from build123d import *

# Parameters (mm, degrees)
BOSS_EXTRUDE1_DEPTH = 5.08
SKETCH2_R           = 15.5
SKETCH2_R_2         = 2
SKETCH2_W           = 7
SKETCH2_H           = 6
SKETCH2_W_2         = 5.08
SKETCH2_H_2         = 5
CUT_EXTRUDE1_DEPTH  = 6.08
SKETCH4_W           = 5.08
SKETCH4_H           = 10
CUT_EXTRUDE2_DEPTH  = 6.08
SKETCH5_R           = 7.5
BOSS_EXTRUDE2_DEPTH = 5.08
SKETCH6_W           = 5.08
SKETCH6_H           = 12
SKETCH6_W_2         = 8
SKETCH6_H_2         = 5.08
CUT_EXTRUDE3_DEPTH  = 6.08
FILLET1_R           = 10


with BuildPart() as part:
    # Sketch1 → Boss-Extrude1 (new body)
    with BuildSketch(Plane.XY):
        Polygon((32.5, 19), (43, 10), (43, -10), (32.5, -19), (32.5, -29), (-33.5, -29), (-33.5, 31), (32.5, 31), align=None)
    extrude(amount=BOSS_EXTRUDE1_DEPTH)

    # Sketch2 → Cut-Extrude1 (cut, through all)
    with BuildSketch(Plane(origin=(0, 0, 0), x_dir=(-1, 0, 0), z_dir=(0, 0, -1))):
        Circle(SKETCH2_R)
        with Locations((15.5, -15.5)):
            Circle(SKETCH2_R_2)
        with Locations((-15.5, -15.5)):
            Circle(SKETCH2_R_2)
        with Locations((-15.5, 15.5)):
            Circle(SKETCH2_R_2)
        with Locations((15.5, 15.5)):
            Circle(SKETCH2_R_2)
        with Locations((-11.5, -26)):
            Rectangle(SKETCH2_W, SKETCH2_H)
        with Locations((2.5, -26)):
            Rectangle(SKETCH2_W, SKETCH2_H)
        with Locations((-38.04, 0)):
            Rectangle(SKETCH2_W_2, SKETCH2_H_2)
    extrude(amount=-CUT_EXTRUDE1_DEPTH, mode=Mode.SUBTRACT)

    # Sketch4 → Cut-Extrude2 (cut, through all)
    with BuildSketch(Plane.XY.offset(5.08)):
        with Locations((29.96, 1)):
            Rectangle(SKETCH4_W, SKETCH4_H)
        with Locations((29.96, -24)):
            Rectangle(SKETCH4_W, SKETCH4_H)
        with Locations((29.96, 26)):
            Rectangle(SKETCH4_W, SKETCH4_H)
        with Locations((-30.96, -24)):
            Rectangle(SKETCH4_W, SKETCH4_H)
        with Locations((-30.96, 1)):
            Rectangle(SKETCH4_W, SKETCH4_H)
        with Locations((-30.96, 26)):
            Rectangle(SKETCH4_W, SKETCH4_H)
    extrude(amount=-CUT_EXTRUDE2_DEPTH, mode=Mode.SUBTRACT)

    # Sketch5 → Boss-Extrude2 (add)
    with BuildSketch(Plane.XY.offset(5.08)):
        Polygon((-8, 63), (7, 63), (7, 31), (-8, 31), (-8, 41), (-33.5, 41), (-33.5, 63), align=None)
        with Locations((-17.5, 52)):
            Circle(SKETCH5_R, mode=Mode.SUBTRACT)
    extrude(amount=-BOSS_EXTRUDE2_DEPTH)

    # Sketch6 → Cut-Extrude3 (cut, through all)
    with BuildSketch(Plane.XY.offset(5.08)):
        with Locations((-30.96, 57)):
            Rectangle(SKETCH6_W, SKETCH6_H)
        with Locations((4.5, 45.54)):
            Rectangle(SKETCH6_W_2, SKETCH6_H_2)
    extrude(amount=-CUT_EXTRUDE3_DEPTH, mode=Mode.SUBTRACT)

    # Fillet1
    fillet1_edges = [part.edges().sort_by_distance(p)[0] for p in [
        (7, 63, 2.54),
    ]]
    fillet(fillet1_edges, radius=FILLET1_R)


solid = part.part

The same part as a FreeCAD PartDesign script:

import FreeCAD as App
import Part
import Sketcher
Q = App.Units.Quantity


def edges_at(feature, points):
    """Names of the edges that pass closest to the given points."""
    edges = feature.Shape.Edges
    near = lambda p: min(range(len(edges)), key=lambda i: edges[i].distToShape(Part.Vertex(*p))[0])
    return sorted({f"Edge{near(p) + 1}" for p in points})


def add_polygon(sketch, points):
    """Adds a closed chain of lines whose ends are joined by coincident constraints."""
    first, n = sketch.GeometryCount, len(points)
    for a, b in zip(points, points[1:] + points[:1]):
        sketch.addGeometry(Part.LineSegment(App.Vector(*a, 0), App.Vector(*b, 0)), False)
    for i in range(n):
        sketch.addConstraint(Sketcher.Constraint("Coincident", first + i, 2, first + (i + 1) % n, 1))

doc = App.newDocument("Part")
params = doc.addObject("Spreadsheet::Sheet", "Params")
for row, (alias, value) in enumerate([
    ("sketch1_width", "66 mm"),
    ("sketch1_height", "12 mm"),
    ("sketch1_height2", "60 mm"),
    ("sketch1_height3", "10 mm"),
    ("sketch1_height4", "20 mm"),
    ("pad1_length", "5.08 mm"),
    ("sketch2_diameter", "31 mm"),
    ("sketch2_diameter2", "4 mm"),
    ("sketch2_width", "7 mm"),
    ("sketch2_height", "6 mm"),
    ("sketch2_height2", "5 mm"),
    ("sketch3_height", "10 mm"),
    ("sketch3_width", "5.08 mm"),
    ("sketch4_diameter", "15 mm"),
    ("sketch4_width", "15 mm"),
    ("sketch4_height", "22 mm"),
    ("sketch4_height2", "10 mm"),
    ("sketch4_width2", "40.5 mm"),
    ("pad2_length", "5.08 mm"),
    ("sketch5_width", "8 mm"),
    ("sketch5_height", "12 mm"),
    ("sketch5_width2", "5.08 mm"),
    ("fillet_radius", "10 mm"),
], start=1):
    params.set(f"A{row}", alias)
    params.set(f"B{row}", "=" + value)
    params.setAlias(f"B{row}", alias)

body = doc.addObject("PartDesign::Body", "Body")

# Sketch on XY plane
sketch1 = body.newObject("Sketcher::SketchObject", "Sketch")
sketch1.AttachmentSupport = (doc.getObject("XY_Plane"), [""])
sketch1.MapMode = "FlatFace"
add_polygon(sketch1, [(43, 10), (32, 19), (32, 31), (-34, 31), (-34, -29), (32, -29), (32, -19), (43, -10)])  # lines 0-7
sketch1.addConstraint([
    Sketcher.Constraint("Vertical", 1),
    Sketcher.Constraint("Horizontal", 2),
    Sketcher.Constraint("Vertical", 3),
    Sketcher.Constraint("Horizontal", 4),
    Sketcher.Constraint("Vertical", 5),
    Sketcher.Constraint("Vertical", 7),
    Sketcher.Constraint("Symmetric", 0, 2, 5, 2, -1),
    Sketcher.Constraint("Equal", 0, 6),
    Sketcher.Constraint("DistanceX", 2, 2, 2, 1, Q("66 mm")),
    Sketcher.Constraint("DistanceY", 1, 1, 1, 2, Q("12 mm")),
    Sketcher.Constraint("DistanceY", 3, 2, 3, 1, Q("60 mm")),
    Sketcher.Constraint("DistanceY", 5, 1, 5, 2, Q("10 mm")),
    Sketcher.Constraint("DistanceY", 7, 1, 7, 2, Q("20 mm")),
    Sketcher.Constraint("DistanceX", -1, 1, 6, 2, Q("43 mm")),
    Sketcher.Constraint("DistanceX", -1, 1, 0, 2, Q("32.5 mm")),
])
sketch1.setExpression("Constraints[16]", "Params.sketch1_width")
sketch1.setExpression("Constraints[17]", "Params.sketch1_height")
sketch1.setExpression("Constraints[18]", "Params.sketch1_height2")
sketch1.setExpression("Constraints[19]", "Params.sketch1_height3")
sketch1.setExpression("Constraints[20]", "Params.sketch1_height4")
pad1 = body.newObject("PartDesign::Pad", "Pad")
pad1.Profile = sketch1
pad1.setExpression("Length", "Params.pad1_length")

# Sketch on XY plane
sketch2 = body.newObject("Sketcher::SketchObject", "Sketch001")
sketch2.AttachmentSupport = (doc.getObject("XY_Plane"), [""])
sketch2.MapMode = "FlatFace"
sketch2.addGeometry(Part.Circle(App.Vector(0, 0, 0), App.Vector(0, 0, 1), 15.5), False)  # 0
sketch2.addGeometry(Part.Circle(App.Vector(-15.5, -15.5, 0), App.Vector(0, 0, 1), 2), False)  # 1
sketch2.addGeometry(Part.Circle(App.Vector(15.5, -15.5, 0), App.Vector(0, 0, 1), 2), False)  # 2
sketch2.addGeometry(Part.Circle(App.Vector(15.5, 15.5, 0), App.Vector(0, 0, 1), 2), False)  # 3
sketch2.addGeometry(Part.Circle(App.Vector(-15.5, 15.5, 0), App.Vector(0, 0, 1), 2), False)  # 4
add_polygon(sketch2, [(15, -23), (15, -29), (8, -29), (8, -23)])  # lines 5-8
add_polygon(sketch2, [(1, -23), (1, -29), (-6, -29), (-6, -23)])  # lines 9-12
add_polygon(sketch2, [(40.6, 2.5), (40.6, -2.5), (35.5, -2.5), (35.5, 2.5)])  # lines 13-16
sketch2.addConstraint([
    Sketcher.Constraint("Vertical", 5),
    Sketcher.Constraint("Horizontal", 6),
    Sketcher.Constraint("Vertical", 7),
    Sketcher.Constraint("Horizontal", 8),
    Sketcher.Constraint("Vertical", 9),
    Sketcher.Constraint("Horizontal", 10),
    Sketcher.Constraint("Vertical", 11),
    Sketcher.Constraint("Horizontal", 12),
    Sketcher.Constraint("Vertical", 13),
    Sketcher.Constraint("Horizontal", 14),
    Sketcher.Constraint("Vertical", 15),
    Sketcher.Constraint("Horizontal", 16),
    Sketcher.Constraint("Coincident", 0, 3, -1, 1),
    Sketcher.Constraint("Equal", 1, 2),
    Sketcher.Constraint("Equal", 2, 3),
    Sketcher.Constraint("Equal", 3, 4),
    Sketcher.Constraint("Symmetric", 1, 3, 3, 3, -1, 1),
    Sketcher.Constraint("Symmetric", 2, 3, 4, 3, -1, 1),
    Sketcher.Constraint("Symmetric", 1, 3, 2, 3, -2),
    Sketcher.Constraint("Horizontal", 6, 2, 9, 2),
    Sketcher.Constraint("Horizontal", 8, 2, 11, 2),
    Sketcher.Constraint("Equal", 8, 10),
    Sketcher.Constraint("Diameter", 0, Q("31 mm")),
    Sketcher.Constraint("Diameter", 1, Q("4 mm")),
    Sketcher.Constraint("DistanceX", 6, 2, 6, 1, Q("7 mm")),
    Sketcher.Constraint("DistanceY", 5, 2, 5, 1, Q("6 mm")),
    Sketcher.Constraint("DistanceY", 13, 2, 13, 1, Q("5 mm")),
    Sketcher.Constraint("DistanceX", -1, 1, 5, 2, Q("15 mm")),
    Sketcher.Constraint("DistanceY", 5, 2, -1, 1, Q("29 mm")),
    Sketcher.Constraint("DistanceX", -1, 1, 9, 2, Q("1 mm")),
    Sketcher.Constraint("DistanceX", 1, 3, 2, 3, Q("31 mm")),
    Sketcher.Constraint("DistanceY", 2, 3, 3, 3, Q("31 mm")),
    Sketcher.Constraint("DistanceY", 2, 3, 13, 2, Q("13 mm")),
    Sketcher.Constraint("DistanceX", 2, 3, 14, 2, Q("20 mm")),
    Sketcher.Constraint("DistanceX", 14, 2, 14, 1, Q("5.08 mm")),
])
sketch2.setExpression("Constraints[34]", "Params.sketch2_diameter")
sketch2.setExpression("Constraints[35]", "Params.sketch2_diameter2")
sketch2.setExpression("Constraints[36]", "Params.sketch2_width")
sketch2.setExpression("Constraints[37]", "Params.sketch2_height")
sketch2.setExpression("Constraints[38]", "Params.sketch2_height2")
pocket1 = body.newObject("PartDesign::Pocket", "Pocket")
pocket1.Profile = sketch2
pocket1.Type = "ThroughAll"
pocket1.Reversed = True

# Sketch on XY plane
sketch3 = body.newObject("Sketcher::SketchObject", "Sketch002")
sketch3.AttachmentSupport = (doc.getObject("XY_Plane"), [""])
sketch3.MapMode = "FlatFace"
sketch3.AttachmentOffset = App.Placement(App.Vector(0, 0, 5.08), App.Rotation())
add_polygon(sketch3, [(27, 6), (27, -4), (32, -4), (32, 6)])  # lines 0-3
add_polygon(sketch3, [(27, -19), (27, -29), (32, -29), (32, -19)])  # lines 4-7
add_polygon(sketch3, [(27, 31), (27, 21), (32, 21), (32, 31)])  # lines 8-11
add_polygon(sketch3, [(-34, -19), (-34, -29), (-28, -29), (-28, -19)])  # lines 12-15
add_polygon(sketch3, [(-34, 6), (-34, -4), (-28, -4), (-28, 6)])  # lines 16-19
add_polygon(sketch3, [(-34, 31), (-34, 21), (-28, 21), (-28, 31)])  # lines 20-23
sketch3.addConstraint([
    Sketcher.Constraint("Vertical", 0),
    Sketcher.Constraint("Horizontal", 1),
    Sketcher.Constraint("Vertical", 2),
    Sketcher.Constraint("Horizontal", 3),
    Sketcher.Constraint("Vertical", 4),
    Sketcher.Constraint("Horizontal", 5),
    Sketcher.Constraint("Vertical", 6),
    Sketcher.Constraint("Horizontal", 7),
    Sketcher.Constraint("Vertical", 8),
    Sketcher.Constraint("Horizontal", 9),
    Sketcher.Constraint("Vertical", 10),
    Sketcher.Constraint("Horizontal", 11),
    Sketcher.Constraint("Vertical", 12),
    Sketcher.Constraint("Horizontal", 13),
    Sketcher.Constraint("Vertical", 14),
    Sketcher.Constraint("Horizontal", 15),
    Sketcher.Constraint("Vertical", 16),
    Sketcher.Constraint("Horizontal", 17),
    Sketcher.Constraint("Vertical", 18),
    Sketcher.Constraint("Horizontal", 19),
    Sketcher.Constraint("Vertical", 20),
    Sketcher.Constraint("Horizontal", 21),
    Sketcher.Constraint("Vertical", 22),
    Sketcher.Constraint("Horizontal", 23),
    Sketcher.Constraint("Horizontal", 5, 2, 12, 2),
    Sketcher.Constraint("Horizontal", 7, 2, 14, 2),
    Sketcher.Constraint("Horizontal", 1, 2, 16, 2),
    Sketcher.Constraint("Horizontal", 3, 2, 18, 2),
    Sketcher.Constraint("Horizontal", 9, 2, 20, 2),
    Sketcher.Constraint("Horizontal", 11, 2, 22, 2),
    Sketcher.Constraint("Vertical", 3, 2, 4, 2),
    Sketcher.Constraint("Vertical", 2, 2, 5, 2),
    Sketcher.Constraint("Vertical", 7, 2, 8, 2),
    Sketcher.Constraint("Vertical", 6, 2, 9, 2),
    Sketcher.Constraint("Vertical", 15, 2, 16, 2),
    Sketcher.Constraint("Vertical", 14, 2, 17, 2),
    Sketcher.Constraint("Vertical", 19, 2, 20, 2),
    Sketcher.Constraint("Vertical", 18, 2, 21, 2),
    Sketcher.Constraint("Equal", 11, 13),
    Sketcher.Constraint("Equal", 2, 4),
    Sketcher.Constraint("Equal", 6, 8),
    Sketcher.Constraint("DistanceY", 0, 2, 0, 1, Q("10 mm")),
    Sketcher.Constraint("DistanceY", 0, 2, -1, 1, Q("4 mm")),
    Sketcher.Constraint("DistanceY", 4, 2, -1, 1, Q("29 mm")),
    Sketcher.Constraint("DistanceY", -1, 1, 8, 2, Q("21 mm")),
    Sketcher.Constraint("DistanceX", 12, 2, 5, 2, Q("66 mm")),
    Sketcher.Constraint("DistanceX", 1, 1, 1, 2, Q("5.08 mm")),
    Sketcher.Constraint("DistanceX", -1, 1, 1, 2, Q("32.5 mm")),
])
sketch3.setExpression("Constraints[65]", "Params.sketch3_height")
sketch3.setExpression("Constraints[70]", "Params.sketch3_width")
pocket2 = body.newObject("PartDesign::Pocket", "Pocket001")
pocket2.Profile = sketch3
pocket2.Type = "ThroughAll"

# Sketch on XY plane
sketch4 = body.newObject("Sketcher::SketchObject", "Sketch003")
sketch4.AttachmentSupport = (doc.getObject("XY_Plane"), [""])
sketch4.MapMode = "FlatFace"
sketch4.AttachmentOffset = App.Placement(App.Vector(0, 0, 5.08), App.Rotation())
add_polygon(sketch4, [(7, 63), (-34, 63), (-34, 41), (-8, 41), (-8, 31), (7, 31)])  # lines 0-5
sketch4.addGeometry(Part.Circle(App.Vector(-18, 52, 0), App.Vector(0, 0, 1), 8), False)  # 6
sketch4.addConstraint([
    Sketcher.Constraint("Horizontal", 0),
    Sketcher.Constraint("Vertical", 1),
    Sketcher.Constraint("Horizontal", 2),
    Sketcher.Constraint("Vertical", 3),
    Sketcher.Constraint("Horizontal", 4),
    Sketcher.Constraint("Vertical", 5),
    Sketcher.Constraint("Diameter", 6, Q("15 mm")),
    Sketcher.Constraint("DistanceX", 4, 1, 4, 2, Q("15 mm")),
    Sketcher.Constraint("DistanceY", 1, 2, 1, 1, Q("22 mm")),
    Sketcher.Constraint("DistanceY", 3, 2, 3, 1, Q("10 mm")),
    Sketcher.Constraint("DistanceX", 0, 2, 0, 1, Q("40.5 mm")),
    Sketcher.Constraint("DistanceY", -1, 1, 6, 3, Q("52 mm")),
    Sketcher.Constraint("DistanceY", -1, 1, 0, 2, Q("63 mm")),
    Sketcher.Constraint("DistanceX", 2, 2, -1, 1, Q("8 mm")),
    Sketcher.Constraint("DistanceX", 0, 2, 6, 3, Q("16 mm")),
])
sketch4.setExpression("Constraints[12]", "Params.sketch4_diameter")
sketch4.setExpression("Constraints[13]", "Params.sketch4_width")
sketch4.setExpression("Constraints[14]", "Params.sketch4_height")
sketch4.setExpression("Constraints[15]", "Params.sketch4_height2")
sketch4.setExpression("Constraints[16]", "Params.sketch4_width2")
pad2 = body.newObject("PartDesign::Pad", "Pad001")
pad2.Profile = sketch4
pad2.setExpression("Length", "Params.pad2_length")
pad2.Reversed = True

# Sketch on XY plane
sketch5 = body.newObject("Sketcher::SketchObject", "Sketch004")
sketch5.AttachmentSupport = (doc.getObject("XY_Plane"), [""])
sketch5.MapMode = "FlatFace"
sketch5.AttachmentOffset = App.Placement(App.Vector(0, 0, 5.08), App.Rotation())
add_polygon(sketch5, [(-34, 63), (-34, 51), (-28, 51), (-28, 63)])  # lines 0-3
add_polygon(sketch5, [(0, 48), (0, 43), (8, 43), (8, 48)])  # lines 4-7
sketch5.addConstraint([
    Sketcher.Constraint("Vertical", 0),
    Sketcher.Constraint("Horizontal", 1),
    Sketcher.Constraint("Vertical", 2),
    Sketcher.Constraint("Horizontal", 3),
    Sketcher.Constraint("Vertical", 4),
    Sketcher.Constraint("Horizontal", 5),
    Sketcher.Constraint("Vertical", 6),
    Sketcher.Constraint("Horizontal", 7),
    Sketcher.Constraint("Equal", 3, 4),
    Sketcher.Constraint("DistanceX", 5, 1, 5, 2, Q("8 mm")),
    Sketcher.Constraint("DistanceY", 0, 2, 0, 1, Q("12 mm")),
    Sketcher.Constraint("DistanceY", -1, 1, 0, 2, Q("51 mm")),
    Sketcher.Constraint("DistanceY", -1, 1, 4, 2, Q("43 mm")),
    Sketcher.Constraint("DistanceX", 0, 2, 4, 2, Q("34 mm")),
    Sketcher.Constraint("DistanceX", 1, 1, 1, 2, Q("5.08 mm")),
    Sketcher.Constraint("DistanceX", 0, 2, -1, 1, Q("33.5 mm")),
])
sketch5.setExpression("Constraints[17]", "Params.sketch5_width")
sketch5.setExpression("Constraints[18]", "Params.sketch5_height")
sketch5.setExpression("Constraints[22]", "Params.sketch5_width2")
pocket3 = body.newObject("PartDesign::Pocket", "Pocket002")
pocket3.Profile = sketch5
pocket3.Type = "ThroughAll"
doc.recompute()

fillet = body.newObject("PartDesign::Fillet", "Fillet")
fillet.Base = (pocket3, edges_at(pocket3, [(7, 63, 2.54)]))
fillet.setExpression("Radius", "Params.fillet_radius")

doc.recompute()
